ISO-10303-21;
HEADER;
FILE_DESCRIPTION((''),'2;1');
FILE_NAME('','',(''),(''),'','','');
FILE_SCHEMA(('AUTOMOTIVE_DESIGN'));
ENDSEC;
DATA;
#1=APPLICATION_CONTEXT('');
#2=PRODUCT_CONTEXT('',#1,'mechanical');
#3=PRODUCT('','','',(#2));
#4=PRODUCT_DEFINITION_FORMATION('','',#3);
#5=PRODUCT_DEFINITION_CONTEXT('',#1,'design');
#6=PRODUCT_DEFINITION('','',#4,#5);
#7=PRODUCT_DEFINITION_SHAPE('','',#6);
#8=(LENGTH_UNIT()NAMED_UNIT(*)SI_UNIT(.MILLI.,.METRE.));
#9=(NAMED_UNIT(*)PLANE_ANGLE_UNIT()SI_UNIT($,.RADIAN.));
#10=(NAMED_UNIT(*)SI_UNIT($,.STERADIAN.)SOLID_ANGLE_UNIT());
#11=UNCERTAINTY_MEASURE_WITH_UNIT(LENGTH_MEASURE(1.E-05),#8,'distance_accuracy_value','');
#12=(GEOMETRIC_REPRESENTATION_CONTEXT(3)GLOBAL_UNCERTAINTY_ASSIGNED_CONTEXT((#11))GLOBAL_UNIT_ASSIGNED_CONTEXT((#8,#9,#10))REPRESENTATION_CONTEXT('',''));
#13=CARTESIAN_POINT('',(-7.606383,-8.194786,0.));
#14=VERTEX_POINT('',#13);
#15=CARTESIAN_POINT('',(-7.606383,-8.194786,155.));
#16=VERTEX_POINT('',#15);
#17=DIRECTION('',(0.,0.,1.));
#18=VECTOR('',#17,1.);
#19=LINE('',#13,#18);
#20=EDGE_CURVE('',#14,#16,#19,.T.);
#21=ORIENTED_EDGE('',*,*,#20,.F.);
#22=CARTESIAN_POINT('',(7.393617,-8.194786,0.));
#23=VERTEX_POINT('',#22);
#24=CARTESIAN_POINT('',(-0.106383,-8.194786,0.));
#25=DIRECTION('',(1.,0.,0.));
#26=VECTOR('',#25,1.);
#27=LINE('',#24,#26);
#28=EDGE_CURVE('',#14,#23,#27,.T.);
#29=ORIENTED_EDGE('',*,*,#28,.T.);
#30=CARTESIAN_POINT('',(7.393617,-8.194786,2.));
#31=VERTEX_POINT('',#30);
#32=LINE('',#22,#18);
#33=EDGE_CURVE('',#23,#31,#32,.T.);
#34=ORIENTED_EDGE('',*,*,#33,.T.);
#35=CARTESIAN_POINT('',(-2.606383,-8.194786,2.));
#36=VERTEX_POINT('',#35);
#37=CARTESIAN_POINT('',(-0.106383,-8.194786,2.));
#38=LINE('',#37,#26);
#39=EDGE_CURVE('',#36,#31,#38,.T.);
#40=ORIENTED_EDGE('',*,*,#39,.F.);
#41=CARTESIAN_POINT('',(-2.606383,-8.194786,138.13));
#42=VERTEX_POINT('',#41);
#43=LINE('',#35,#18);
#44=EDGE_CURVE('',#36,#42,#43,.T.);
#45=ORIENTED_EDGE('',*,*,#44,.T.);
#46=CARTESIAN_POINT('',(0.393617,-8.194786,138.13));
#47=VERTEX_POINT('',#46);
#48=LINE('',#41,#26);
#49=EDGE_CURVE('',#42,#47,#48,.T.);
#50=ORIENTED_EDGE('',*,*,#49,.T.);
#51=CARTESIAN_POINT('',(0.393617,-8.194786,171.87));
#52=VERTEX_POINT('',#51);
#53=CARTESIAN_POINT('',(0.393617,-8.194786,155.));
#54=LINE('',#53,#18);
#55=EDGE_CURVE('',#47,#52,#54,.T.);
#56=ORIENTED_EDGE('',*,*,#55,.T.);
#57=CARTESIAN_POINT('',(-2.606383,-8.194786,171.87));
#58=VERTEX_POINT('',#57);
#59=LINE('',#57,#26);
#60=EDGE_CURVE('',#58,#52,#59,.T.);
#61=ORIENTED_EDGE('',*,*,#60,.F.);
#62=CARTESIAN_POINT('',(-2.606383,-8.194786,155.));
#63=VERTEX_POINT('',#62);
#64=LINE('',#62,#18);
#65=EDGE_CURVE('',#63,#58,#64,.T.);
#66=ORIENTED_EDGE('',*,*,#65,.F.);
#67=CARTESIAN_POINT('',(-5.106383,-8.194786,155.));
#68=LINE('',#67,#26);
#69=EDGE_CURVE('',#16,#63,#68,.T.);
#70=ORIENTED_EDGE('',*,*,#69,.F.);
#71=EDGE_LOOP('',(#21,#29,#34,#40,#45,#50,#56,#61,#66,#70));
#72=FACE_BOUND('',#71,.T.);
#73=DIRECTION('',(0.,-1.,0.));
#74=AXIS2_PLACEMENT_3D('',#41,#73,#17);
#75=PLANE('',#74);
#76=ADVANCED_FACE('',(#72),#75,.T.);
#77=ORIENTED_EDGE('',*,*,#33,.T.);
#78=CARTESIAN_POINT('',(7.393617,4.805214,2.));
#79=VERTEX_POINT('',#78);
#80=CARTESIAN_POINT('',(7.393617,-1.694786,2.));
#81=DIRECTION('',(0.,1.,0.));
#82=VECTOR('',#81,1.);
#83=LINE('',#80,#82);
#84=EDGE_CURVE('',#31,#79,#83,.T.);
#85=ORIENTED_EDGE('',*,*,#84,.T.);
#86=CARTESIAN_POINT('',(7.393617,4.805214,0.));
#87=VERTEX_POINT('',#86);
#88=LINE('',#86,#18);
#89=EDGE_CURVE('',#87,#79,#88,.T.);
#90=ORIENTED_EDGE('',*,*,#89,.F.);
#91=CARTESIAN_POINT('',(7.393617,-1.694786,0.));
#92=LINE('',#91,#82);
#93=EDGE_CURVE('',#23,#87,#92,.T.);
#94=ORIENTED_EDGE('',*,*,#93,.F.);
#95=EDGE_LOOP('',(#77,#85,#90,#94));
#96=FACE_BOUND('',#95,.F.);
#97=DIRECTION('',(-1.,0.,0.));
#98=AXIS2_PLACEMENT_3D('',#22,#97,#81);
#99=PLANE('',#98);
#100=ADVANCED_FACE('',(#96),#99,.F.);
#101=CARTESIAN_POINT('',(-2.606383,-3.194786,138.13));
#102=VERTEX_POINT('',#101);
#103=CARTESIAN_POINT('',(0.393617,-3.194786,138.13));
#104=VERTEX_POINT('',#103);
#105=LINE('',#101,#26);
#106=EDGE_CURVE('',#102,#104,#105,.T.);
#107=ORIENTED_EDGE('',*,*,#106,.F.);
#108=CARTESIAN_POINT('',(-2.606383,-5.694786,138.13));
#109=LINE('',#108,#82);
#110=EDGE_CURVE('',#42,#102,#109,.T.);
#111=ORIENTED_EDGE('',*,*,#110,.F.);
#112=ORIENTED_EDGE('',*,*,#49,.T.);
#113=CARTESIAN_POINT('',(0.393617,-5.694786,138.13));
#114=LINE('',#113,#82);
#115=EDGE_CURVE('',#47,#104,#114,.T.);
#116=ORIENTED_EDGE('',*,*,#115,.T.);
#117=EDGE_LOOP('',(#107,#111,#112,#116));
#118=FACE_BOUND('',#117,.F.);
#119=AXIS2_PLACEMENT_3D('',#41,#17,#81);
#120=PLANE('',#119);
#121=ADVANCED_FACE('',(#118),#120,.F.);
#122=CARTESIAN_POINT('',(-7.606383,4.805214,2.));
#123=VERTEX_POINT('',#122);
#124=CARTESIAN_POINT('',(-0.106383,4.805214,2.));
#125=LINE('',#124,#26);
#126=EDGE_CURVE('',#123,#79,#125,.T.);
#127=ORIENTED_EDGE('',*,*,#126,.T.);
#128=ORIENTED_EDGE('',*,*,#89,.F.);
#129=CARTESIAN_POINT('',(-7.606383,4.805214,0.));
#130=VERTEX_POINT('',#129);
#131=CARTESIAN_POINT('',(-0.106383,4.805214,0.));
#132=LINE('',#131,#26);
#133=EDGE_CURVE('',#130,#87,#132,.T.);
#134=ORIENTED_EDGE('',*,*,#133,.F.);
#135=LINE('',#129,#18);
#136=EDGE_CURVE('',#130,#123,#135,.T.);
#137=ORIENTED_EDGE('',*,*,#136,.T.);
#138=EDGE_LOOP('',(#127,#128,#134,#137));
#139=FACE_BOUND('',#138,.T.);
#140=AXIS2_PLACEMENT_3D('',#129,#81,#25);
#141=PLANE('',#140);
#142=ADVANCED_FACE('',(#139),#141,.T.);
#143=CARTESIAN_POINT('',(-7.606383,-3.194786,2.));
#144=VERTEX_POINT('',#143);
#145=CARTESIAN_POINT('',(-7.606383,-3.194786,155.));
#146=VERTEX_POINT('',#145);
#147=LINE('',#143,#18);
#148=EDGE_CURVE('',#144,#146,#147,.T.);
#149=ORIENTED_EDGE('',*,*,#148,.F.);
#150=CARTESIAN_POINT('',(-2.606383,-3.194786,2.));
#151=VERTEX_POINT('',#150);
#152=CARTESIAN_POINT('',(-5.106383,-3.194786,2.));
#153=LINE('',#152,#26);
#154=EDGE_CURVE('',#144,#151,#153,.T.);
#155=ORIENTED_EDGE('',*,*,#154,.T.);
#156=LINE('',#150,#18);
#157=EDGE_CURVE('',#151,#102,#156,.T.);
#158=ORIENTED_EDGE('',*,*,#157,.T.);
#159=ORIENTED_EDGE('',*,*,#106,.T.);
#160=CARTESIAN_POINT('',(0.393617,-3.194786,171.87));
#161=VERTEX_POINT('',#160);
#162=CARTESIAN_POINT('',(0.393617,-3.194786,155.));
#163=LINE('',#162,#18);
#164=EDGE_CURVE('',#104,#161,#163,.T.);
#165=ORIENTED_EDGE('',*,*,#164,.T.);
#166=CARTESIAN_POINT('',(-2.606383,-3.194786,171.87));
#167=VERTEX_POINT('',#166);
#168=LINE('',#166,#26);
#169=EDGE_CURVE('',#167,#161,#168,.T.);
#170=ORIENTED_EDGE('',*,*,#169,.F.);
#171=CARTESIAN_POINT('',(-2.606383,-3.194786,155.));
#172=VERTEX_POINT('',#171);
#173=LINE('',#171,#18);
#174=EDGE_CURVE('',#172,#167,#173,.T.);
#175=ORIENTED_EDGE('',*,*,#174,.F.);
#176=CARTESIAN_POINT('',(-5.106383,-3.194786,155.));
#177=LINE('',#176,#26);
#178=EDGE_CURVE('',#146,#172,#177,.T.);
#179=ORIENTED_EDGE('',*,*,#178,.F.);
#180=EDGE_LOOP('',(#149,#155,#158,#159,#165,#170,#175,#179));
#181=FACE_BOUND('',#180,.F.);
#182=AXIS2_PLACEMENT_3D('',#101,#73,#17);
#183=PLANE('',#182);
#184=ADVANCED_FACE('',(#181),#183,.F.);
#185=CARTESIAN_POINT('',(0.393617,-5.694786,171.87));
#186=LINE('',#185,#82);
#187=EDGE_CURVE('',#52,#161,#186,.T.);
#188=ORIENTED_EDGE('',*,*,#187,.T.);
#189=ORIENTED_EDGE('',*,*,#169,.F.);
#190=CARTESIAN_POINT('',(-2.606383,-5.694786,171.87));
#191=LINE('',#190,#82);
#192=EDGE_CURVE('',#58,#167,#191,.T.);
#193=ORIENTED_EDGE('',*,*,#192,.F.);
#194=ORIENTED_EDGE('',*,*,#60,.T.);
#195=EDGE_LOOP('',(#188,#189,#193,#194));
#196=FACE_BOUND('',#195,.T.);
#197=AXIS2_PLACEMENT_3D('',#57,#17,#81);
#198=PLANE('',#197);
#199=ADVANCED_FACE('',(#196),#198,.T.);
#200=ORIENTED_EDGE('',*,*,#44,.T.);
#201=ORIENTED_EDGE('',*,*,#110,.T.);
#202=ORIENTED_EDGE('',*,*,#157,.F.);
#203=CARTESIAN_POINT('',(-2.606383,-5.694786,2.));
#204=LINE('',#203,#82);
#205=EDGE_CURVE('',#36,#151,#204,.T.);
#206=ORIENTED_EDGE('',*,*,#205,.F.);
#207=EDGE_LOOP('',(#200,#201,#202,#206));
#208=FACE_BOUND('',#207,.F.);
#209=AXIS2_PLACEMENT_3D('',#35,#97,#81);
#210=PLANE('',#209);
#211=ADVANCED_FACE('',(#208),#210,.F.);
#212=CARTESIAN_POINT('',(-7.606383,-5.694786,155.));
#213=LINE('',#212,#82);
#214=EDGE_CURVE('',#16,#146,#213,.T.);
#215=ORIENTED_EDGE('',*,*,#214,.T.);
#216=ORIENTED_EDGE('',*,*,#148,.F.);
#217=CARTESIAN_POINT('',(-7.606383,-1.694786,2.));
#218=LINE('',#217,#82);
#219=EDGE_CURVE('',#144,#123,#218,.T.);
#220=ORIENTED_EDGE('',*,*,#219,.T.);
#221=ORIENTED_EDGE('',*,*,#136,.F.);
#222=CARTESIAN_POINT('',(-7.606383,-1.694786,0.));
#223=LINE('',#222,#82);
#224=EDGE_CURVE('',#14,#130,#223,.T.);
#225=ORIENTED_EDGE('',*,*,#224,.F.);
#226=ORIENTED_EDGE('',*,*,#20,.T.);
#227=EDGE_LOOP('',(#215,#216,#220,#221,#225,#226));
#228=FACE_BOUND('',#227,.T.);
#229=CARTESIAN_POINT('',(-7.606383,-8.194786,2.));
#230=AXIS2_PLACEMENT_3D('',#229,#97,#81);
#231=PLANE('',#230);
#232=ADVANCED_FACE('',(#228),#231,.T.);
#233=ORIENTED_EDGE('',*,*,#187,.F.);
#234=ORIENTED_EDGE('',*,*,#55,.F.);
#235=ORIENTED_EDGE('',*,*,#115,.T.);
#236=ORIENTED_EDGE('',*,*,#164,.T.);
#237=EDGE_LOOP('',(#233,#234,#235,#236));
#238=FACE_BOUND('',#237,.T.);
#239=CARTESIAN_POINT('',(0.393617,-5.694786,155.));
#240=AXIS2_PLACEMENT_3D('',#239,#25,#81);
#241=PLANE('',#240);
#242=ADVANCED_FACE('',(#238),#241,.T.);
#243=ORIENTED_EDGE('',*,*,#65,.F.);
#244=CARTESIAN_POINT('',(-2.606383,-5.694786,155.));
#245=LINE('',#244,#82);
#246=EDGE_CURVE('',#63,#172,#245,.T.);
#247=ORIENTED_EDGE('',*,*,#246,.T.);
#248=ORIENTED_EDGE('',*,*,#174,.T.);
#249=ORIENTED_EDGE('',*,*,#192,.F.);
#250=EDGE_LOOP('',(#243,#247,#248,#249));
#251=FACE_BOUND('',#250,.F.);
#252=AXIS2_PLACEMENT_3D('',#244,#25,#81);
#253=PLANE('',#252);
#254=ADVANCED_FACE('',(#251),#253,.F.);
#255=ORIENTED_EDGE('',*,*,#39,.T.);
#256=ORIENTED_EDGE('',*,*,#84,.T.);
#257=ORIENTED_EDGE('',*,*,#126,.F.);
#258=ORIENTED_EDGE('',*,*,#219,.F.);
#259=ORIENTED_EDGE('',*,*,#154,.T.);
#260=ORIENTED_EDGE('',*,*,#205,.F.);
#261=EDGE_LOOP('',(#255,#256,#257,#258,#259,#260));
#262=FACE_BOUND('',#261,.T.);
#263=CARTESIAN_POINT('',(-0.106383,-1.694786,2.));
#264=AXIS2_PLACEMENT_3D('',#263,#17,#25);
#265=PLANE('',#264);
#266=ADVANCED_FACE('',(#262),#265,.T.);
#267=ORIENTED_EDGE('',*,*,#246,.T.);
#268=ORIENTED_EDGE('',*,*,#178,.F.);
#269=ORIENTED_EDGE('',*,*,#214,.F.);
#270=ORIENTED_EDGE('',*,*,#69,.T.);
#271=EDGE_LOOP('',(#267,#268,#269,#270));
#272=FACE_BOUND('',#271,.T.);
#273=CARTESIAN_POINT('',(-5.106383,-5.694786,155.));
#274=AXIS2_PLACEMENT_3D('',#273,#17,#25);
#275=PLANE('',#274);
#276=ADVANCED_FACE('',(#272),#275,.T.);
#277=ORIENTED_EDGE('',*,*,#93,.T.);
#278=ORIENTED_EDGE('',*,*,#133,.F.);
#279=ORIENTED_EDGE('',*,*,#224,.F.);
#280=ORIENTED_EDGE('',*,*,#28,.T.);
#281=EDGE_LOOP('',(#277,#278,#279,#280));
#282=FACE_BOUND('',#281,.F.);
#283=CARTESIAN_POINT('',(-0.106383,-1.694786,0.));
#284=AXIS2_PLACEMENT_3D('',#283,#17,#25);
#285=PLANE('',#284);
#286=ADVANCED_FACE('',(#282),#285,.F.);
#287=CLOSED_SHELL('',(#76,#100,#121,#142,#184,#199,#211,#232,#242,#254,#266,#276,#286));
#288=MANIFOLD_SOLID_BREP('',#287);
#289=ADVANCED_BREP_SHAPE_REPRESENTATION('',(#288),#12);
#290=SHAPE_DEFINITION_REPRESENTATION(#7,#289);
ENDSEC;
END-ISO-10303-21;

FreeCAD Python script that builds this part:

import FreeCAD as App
import Part
import Sketcher


def add_polygon(sketch, points):
    """Adds a closed chain of lines whose ends are joined by coincident constraints."""
    first, n = sketch.GeometryCount, len(points)
    for a, b in zip(points, points[1:] + points[:1]):
        sketch.addGeometry(Part.LineSegment(App.Vector(*a, 0), App.Vector(*b, 0)), False)
    for i in range(n):
        sketch.addConstraint(Sketcher.Constraint("Coincident", first + i, 2, first + (i + 1) % n, 1))

doc = App.newDocument("Part")
body = doc.addObject("PartDesign::Body", "Body")

# Sketch on XY plane
sketch1 = body.newObject("Sketcher::SketchObject", "Sketch")
sketch1.AttachmentSupport = (doc.getObject("XY_Plane"), [""])
sketch1.MapMode = "FlatFace"
add_polygon(sketch1, [(-8, 5), (-8, -8), (7, -8), (7, 5)])  # lines 0-3
sketch1.addConstraint([
    Sketcher.Constraint("Vertical", 0),
    Sketcher.Constraint("Horizontal", 1),
    Sketcher.Constraint("Vertical", 2),
    Sketcher.Constraint("Horizontal", 3),
    Sketcher.Constraint("DistanceX", 1, 1, 1, 2, 15.0),
    Sketcher.Constraint("DistanceY", 0, 2, 0, 1, 13.0),
    Sketcher.Constraint("DistanceX", 0, 2, -1, 1, 7.606383),
    Sketcher.Constraint("DistanceY", 0, 2, -1, 1, 8.194786),
])
pad1 = body.newObject("PartDesign::Pad", "Pad")
pad1.Profile = sketch1
pad1.Length = 2

# Sketch on XY plane
sketch2 = body.newObject("Sketcher::SketchObject", "Sketch001")
sketch2.AttachmentSupport = (doc.getObject("XY_Plane"), [""])
sketch2.MapMode = "FlatFace"
sketch2.AttachmentOffset = App.Placement(App.Vector(0, 0, 2), App.Rotation())
add_polygon(sketch2, [(-8, -3), (-8, -8), (-3, -8), (-3, -3)])  # lines 0-3
sketch2.addConstraint([
    Sketcher.Constraint("Vertical", 0),
    Sketcher.Constraint("Horizontal", 1),
    Sketcher.Constraint("Vertical", 2),
    Sketcher.Constraint("Horizontal", 3),
    Sketcher.Constraint("Equal", 3, 0),
    Sketcher.Constraint("DistanceX", 1, 1, 1, 2, 5.0),
    Sketcher.Constraint("DistanceX", 0, 2, -1, 1, 7.606383),
    Sketcher.Constraint("DistanceY", 0, 2, -1, 1, 8.194786),
])
pad2 = body.newObject("PartDesign::Pad", "Pad001")
pad2.Profile = sketch2
pad2.Length = 153

# Sketch on YZ plane
sketch3 = body.newObject("Sketcher::SketchObject", "Sketch002")
sketch3.AttachmentSupport = (doc.getObject("YZ_Plane"), [""])
sketch3.MapMode = "FlatFace"
sketch3.AttachmentOffset = App.Placement(App.Vector(0, 0, -2.606383), App.Rotation())
add_polygon(sketch3, [(-8, 172), (-8, 138), (-3, 138), (-3, 172)])  # lines 0-3
sketch3.addConstraint([
    Sketcher.Constraint("Vertical", 0),
    Sketcher.Constraint("Horizontal", 1),
    Sketcher.Constraint("Vertical", 2),
    Sketcher.Constraint("Horizontal", 3),
    Sketcher.Constraint("DistanceX", 1, 1, 1, 2, 5.0),
    Sketcher.Constraint("DistanceY", 0, 2, 0, 1, 33.74),
    Sketcher.Constraint("DistanceY", -1, 1, 0, 2, 138.13),
    Sketcher.Constraint("DistanceX", 0, 2, -1, 1, 8.194786),
])
pad3 = body.newObject("PartDesign::Pad", "Pad002")
pad3.Profile = sketch3
pad3.Length = 3

doc.recompute()
